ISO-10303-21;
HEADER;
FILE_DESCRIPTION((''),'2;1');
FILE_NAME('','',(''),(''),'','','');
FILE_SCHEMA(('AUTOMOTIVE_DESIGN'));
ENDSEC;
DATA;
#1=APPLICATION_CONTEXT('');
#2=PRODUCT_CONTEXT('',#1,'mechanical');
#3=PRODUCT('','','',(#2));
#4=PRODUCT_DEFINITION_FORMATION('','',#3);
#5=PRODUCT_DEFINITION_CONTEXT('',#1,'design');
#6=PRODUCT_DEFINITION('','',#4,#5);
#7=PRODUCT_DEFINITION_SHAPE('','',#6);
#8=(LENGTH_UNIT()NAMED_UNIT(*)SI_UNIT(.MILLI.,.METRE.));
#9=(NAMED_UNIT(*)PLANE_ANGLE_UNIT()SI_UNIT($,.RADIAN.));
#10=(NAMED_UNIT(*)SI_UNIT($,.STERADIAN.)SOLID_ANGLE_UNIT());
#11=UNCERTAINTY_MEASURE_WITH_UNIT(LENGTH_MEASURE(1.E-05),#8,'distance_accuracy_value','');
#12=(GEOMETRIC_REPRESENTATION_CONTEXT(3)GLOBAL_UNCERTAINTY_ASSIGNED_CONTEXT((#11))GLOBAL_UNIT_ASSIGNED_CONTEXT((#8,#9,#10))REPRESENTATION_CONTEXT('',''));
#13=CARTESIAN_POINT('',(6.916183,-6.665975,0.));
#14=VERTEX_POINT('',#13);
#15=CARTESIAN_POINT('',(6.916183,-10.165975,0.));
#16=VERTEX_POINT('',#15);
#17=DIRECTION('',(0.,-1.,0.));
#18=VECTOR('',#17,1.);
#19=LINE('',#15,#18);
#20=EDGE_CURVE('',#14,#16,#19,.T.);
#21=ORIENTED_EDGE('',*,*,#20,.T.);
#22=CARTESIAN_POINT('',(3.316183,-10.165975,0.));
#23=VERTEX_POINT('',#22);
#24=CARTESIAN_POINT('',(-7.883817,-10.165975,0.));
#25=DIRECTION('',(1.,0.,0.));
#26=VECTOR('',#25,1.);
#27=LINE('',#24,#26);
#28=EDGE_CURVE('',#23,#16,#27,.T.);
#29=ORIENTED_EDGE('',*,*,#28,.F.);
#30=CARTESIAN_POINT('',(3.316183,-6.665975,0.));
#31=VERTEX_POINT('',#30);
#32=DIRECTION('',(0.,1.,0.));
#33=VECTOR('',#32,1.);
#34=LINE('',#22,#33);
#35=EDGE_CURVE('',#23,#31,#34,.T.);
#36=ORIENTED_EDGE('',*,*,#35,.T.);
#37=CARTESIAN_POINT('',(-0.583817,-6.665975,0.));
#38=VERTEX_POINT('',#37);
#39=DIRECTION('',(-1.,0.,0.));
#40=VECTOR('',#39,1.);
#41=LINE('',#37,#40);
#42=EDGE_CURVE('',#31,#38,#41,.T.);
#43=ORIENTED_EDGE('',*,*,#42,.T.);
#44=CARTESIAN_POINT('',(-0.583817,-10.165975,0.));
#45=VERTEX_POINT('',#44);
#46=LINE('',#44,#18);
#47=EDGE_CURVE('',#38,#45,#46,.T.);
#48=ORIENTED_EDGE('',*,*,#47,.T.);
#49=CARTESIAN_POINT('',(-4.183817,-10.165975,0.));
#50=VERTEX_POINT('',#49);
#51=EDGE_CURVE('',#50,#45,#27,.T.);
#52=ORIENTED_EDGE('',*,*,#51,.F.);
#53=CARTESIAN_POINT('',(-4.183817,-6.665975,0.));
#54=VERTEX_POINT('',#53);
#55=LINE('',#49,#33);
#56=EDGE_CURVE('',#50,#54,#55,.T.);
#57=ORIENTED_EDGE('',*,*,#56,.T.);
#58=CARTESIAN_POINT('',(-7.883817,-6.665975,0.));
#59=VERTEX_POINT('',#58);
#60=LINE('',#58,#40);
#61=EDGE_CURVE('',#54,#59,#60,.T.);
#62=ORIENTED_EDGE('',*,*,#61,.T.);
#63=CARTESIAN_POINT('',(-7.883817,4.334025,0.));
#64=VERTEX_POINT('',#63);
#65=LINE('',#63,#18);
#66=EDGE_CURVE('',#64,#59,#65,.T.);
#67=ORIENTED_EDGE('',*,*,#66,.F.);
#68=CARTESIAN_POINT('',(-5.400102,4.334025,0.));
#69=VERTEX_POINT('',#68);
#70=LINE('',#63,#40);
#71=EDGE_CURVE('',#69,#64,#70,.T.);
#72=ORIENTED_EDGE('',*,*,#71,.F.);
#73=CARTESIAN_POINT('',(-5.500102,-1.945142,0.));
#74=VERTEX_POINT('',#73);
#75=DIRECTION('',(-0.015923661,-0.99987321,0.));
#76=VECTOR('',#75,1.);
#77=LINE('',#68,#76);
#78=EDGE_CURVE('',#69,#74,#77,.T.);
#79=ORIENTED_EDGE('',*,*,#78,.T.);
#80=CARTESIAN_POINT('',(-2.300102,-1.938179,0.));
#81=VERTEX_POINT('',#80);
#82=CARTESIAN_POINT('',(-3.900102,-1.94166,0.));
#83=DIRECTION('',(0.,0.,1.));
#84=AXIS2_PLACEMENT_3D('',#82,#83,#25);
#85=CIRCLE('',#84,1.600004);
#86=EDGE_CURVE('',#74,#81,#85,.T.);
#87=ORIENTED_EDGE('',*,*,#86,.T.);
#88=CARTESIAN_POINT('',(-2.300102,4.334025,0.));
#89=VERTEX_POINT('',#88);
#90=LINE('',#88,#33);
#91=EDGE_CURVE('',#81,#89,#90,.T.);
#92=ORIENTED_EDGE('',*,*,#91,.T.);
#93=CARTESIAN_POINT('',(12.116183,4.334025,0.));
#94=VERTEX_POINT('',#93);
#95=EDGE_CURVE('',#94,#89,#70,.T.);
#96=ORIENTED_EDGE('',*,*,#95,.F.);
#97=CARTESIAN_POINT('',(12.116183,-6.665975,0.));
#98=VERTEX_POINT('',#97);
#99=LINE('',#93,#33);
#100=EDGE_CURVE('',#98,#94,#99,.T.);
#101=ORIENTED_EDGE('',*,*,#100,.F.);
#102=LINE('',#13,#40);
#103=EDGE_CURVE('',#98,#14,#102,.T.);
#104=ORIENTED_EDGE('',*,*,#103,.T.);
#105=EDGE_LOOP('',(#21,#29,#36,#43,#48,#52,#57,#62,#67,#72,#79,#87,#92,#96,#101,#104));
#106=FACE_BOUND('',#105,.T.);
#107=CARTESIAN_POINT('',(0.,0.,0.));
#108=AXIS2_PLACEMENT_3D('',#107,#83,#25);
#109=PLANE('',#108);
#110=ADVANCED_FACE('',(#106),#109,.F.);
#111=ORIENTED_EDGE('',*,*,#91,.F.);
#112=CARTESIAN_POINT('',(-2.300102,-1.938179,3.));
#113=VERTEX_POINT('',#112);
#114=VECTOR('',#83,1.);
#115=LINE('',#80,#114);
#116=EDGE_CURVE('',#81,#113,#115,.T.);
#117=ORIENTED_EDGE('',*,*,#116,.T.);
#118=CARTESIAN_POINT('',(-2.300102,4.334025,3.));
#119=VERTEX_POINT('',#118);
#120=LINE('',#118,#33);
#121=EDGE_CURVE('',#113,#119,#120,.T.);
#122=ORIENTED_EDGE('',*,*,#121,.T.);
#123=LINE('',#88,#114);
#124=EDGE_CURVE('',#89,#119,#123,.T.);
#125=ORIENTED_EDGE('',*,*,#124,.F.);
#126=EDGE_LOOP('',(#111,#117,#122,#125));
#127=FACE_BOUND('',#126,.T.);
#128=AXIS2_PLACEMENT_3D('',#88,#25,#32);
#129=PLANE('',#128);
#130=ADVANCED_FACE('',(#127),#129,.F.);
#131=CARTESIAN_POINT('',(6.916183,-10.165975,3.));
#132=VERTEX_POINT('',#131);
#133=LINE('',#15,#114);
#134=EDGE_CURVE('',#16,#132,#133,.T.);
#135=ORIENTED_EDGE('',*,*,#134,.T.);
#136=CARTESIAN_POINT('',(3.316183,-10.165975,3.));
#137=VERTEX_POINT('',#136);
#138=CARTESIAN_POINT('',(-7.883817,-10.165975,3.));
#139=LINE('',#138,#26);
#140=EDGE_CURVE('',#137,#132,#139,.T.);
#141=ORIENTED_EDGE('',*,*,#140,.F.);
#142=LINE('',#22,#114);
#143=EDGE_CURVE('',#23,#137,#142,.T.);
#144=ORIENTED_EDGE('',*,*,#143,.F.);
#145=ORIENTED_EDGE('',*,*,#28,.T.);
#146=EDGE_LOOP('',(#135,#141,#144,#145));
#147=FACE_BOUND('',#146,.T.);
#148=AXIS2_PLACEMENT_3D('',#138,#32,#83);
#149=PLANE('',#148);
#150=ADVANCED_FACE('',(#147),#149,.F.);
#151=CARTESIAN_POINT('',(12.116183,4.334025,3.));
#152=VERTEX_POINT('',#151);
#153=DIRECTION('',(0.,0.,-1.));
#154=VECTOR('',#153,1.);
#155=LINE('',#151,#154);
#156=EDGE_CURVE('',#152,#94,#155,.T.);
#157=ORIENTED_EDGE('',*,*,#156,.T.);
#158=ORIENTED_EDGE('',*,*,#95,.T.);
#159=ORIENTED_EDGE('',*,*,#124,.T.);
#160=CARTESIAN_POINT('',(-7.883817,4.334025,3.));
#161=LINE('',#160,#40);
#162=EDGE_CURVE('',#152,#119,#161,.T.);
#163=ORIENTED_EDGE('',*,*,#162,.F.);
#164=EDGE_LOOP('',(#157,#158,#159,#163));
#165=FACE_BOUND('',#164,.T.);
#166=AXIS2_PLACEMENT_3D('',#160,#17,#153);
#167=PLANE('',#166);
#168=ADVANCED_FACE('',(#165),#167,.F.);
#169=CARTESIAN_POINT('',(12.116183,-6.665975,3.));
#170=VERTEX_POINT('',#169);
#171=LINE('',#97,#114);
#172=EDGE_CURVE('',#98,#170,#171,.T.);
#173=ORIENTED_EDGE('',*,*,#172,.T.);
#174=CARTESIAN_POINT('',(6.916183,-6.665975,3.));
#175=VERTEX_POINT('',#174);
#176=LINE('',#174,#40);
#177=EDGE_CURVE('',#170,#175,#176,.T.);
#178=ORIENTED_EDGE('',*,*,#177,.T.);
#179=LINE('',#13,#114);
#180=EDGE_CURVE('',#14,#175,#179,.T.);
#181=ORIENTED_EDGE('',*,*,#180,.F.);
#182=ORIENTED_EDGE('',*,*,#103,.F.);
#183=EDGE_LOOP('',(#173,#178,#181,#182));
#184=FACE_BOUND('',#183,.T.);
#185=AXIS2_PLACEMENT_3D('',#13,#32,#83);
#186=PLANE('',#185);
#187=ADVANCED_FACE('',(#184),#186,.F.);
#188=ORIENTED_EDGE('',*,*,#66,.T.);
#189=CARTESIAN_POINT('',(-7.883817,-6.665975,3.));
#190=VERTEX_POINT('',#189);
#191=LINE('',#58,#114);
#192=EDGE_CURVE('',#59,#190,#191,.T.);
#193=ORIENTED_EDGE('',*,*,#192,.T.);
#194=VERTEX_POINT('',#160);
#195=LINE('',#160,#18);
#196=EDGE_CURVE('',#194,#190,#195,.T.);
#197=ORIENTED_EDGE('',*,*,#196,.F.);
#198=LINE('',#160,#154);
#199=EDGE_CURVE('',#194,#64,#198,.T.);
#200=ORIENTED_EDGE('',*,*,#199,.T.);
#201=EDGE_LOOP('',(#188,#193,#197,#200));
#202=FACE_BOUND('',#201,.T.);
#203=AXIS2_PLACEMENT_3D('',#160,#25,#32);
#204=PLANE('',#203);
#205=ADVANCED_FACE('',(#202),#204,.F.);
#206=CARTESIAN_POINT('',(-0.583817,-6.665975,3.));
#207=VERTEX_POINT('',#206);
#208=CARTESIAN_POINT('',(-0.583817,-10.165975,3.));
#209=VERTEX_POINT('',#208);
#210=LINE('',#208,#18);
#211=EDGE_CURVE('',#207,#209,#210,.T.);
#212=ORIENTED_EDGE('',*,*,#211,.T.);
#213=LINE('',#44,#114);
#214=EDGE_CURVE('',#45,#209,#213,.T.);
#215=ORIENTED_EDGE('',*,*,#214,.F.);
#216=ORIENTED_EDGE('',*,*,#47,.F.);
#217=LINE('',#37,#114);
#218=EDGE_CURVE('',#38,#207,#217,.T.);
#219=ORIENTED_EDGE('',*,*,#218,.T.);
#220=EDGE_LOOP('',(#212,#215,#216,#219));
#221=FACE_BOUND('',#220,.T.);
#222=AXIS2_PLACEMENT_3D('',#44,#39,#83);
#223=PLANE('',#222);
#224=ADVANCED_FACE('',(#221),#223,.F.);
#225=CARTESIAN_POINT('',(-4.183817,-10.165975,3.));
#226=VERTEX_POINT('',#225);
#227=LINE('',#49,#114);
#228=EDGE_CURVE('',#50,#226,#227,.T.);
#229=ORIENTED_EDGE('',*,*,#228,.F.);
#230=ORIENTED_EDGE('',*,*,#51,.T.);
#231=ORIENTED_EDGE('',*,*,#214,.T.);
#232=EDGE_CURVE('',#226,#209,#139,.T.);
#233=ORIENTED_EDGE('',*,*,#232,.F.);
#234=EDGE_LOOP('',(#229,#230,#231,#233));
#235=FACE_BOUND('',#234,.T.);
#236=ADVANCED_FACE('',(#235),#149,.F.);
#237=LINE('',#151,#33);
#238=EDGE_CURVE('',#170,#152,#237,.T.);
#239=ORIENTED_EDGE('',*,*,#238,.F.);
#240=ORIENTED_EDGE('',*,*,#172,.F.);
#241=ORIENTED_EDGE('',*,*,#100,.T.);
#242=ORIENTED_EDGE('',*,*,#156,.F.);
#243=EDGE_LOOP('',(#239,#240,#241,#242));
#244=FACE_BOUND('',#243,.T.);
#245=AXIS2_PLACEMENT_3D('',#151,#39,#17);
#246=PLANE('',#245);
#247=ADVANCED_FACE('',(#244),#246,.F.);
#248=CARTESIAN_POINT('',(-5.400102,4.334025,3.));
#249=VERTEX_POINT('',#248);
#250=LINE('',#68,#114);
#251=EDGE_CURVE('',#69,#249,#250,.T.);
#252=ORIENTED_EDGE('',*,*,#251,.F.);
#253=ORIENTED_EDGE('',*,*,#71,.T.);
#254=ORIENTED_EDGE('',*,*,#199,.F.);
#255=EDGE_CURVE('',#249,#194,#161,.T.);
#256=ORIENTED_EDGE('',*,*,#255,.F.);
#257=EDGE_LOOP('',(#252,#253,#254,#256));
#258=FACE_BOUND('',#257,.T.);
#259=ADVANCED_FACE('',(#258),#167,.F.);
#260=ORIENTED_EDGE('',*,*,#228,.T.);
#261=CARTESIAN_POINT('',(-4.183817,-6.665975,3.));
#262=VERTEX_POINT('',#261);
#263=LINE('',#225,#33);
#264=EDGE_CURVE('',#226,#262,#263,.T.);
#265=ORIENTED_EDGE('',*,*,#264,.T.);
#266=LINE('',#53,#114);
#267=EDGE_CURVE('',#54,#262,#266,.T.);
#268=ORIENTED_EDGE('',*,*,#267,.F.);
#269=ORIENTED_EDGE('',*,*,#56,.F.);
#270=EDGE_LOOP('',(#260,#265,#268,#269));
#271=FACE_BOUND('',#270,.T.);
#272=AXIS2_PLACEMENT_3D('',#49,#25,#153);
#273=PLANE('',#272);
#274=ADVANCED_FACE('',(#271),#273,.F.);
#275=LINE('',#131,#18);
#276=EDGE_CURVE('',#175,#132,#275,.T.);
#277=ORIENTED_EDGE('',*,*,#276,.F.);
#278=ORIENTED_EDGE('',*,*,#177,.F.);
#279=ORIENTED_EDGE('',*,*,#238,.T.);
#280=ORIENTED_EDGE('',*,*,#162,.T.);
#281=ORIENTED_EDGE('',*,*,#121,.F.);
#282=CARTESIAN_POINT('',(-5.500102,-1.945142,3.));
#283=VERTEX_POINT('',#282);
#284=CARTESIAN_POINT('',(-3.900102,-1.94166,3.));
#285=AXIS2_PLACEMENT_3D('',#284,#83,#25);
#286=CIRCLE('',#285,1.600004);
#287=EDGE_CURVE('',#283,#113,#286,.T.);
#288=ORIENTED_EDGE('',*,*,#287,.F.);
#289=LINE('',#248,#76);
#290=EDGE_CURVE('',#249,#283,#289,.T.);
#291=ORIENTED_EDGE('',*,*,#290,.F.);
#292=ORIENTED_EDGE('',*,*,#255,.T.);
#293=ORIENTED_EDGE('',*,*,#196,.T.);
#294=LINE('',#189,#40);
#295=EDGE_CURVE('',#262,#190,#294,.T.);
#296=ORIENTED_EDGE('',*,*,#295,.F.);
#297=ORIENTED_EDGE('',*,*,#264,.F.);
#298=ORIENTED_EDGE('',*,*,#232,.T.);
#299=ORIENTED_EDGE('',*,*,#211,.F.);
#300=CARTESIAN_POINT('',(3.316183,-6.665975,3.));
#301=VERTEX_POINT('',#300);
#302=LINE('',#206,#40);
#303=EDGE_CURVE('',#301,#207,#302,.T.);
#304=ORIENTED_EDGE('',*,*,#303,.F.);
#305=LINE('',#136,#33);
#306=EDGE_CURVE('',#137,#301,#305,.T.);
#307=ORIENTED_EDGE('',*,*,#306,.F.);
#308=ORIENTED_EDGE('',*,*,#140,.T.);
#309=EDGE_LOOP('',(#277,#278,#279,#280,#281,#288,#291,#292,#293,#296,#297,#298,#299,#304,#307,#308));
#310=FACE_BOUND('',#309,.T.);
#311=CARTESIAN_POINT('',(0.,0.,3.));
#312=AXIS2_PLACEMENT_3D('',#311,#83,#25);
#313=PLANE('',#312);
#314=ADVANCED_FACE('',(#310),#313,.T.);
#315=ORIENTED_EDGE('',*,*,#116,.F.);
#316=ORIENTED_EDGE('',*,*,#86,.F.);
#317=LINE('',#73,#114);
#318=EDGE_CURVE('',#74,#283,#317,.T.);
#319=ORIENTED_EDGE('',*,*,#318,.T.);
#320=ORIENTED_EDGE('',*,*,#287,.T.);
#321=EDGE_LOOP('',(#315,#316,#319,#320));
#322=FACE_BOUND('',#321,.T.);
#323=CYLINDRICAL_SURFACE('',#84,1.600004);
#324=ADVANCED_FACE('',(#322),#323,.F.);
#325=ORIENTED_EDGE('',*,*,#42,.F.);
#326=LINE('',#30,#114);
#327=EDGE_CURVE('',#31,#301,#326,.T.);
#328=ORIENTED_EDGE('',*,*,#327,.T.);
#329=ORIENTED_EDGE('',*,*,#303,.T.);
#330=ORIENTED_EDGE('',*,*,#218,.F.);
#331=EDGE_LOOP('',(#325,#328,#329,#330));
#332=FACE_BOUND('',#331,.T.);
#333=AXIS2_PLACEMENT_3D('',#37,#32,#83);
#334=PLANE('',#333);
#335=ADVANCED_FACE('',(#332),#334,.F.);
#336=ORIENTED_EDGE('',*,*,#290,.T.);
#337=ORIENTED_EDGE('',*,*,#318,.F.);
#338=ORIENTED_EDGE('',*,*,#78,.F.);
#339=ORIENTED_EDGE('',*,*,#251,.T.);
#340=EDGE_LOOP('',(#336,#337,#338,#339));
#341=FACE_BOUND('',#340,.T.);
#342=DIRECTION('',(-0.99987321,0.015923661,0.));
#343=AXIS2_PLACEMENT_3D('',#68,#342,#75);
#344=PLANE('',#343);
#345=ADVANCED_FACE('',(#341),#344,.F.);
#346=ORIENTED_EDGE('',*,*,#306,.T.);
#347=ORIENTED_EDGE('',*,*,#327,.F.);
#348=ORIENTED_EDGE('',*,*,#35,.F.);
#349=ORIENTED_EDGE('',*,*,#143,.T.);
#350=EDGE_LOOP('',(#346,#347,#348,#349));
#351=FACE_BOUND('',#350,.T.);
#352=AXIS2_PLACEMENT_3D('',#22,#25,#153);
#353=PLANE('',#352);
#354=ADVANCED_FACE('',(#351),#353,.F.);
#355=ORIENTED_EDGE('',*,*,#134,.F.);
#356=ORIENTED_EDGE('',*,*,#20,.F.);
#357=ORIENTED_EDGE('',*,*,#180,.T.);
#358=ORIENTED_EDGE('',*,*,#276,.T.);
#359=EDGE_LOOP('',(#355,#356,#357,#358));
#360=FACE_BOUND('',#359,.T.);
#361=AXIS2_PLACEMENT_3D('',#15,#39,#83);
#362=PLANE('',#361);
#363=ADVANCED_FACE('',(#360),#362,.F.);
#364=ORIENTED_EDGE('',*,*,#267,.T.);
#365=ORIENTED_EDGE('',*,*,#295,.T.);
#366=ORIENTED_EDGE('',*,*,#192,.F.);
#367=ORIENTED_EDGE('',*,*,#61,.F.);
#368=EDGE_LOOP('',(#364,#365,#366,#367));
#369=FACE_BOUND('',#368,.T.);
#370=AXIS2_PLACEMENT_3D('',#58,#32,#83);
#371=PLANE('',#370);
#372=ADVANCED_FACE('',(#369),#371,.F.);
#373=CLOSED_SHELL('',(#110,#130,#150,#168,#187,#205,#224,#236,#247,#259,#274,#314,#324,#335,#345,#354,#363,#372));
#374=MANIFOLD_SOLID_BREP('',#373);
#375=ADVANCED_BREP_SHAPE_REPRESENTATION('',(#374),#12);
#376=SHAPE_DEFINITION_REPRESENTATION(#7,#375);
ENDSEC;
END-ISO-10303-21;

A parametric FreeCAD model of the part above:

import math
import FreeCAD as App
import Part
import Sketcher


def add_polygon(sketch, points):
    """Adds a closed chain of lines whose ends are joined by coincident constraints."""
    first, n = sketch.GeometryCount, len(points)
    for a, b in zip(points, points[1:] + points[:1]):
        sketch.addGeometry(Part.LineSegment(App.Vector(*a, 0), App.Vector(*b, 0)), False)
    for i in range(n):
        sketch.addConstraint(Sketcher.Constraint("Coincident", first + i, 2, first + (i + 1) % n, 1))

doc = App.newDocument("Part")
params = doc.addObject("Spreadsheet::Sheet", "Params")
for row, (alias, value) in enumerate([
    ("sketch1_width", "20 mm"),
    ("sketch1_height", "14.5 mm"),
    ("pad1_length", "3 mm"),
    ("sketch2_width", "3.7 mm"),
    ("sketch2_width2", "3.9 mm"),
    ("sketch2_width3", "5.2 mm"),
    ("sketch2_height", "3.5 mm"),
    ("pocket1_length", "3 mm"),
    ("sketch3_radius", "1.55 mm"),
    ("pocket2_length", "3 mm"),
    ("sketch4_width", "1.6 mm"),
    ("pocket3_length", "3 mm"),
], start=1):
    params.set(f"A{row}", alias)
    params.set(f"B{row}", "=" + value)
    params.setAlias(f"B{row}", alias)

body = doc.addObject("PartDesign::Body", "Body")

sketch1 = body.newObject("Sketcher::SketchObject", "Sketch")
sketch1.AttachmentSupport = (doc.getObject("XY_Plane"), [""])
sketch1.MapMode = "FlatFace"
add_polygon(sketch1, [(-8, 4), (-8, -10), (12, -10), (12, 4)])
sketch1.addConstraint([
    Sketcher.Constraint("Vertical", 0),
    Sketcher.Constraint("Horizontal", 1),
    Sketcher.Constraint("Vertical", 2),
    Sketcher.Constraint("Horizontal", 3),
    Sketcher.Constraint("DistanceX", 1, 1, 1, 2, 20.0),
    Sketcher.Constraint("DistanceY", 0, 2, 0, 1, 14.5),
    Sketcher.Constraint("DistanceX", 0, 2, -1, 1, 7.883817),
    Sketcher.Constraint("DistanceY", 0, 2, -1, 1, 10.165975),
])
sketch1.setExpression("Constraints[8]", "Params.sketch1_width")
sketch1.setExpression("Constraints[9]", "Params.sketch1_height")
pad1 = body.newObject("PartDesign::Pad", "Pad")
pad1.Profile = sketch1
pad1.setExpression("Length", "Params.pad1_length")

sketch2 = body.newObject("Sketcher::SketchObject", "Sketch001")
sketch2.AttachmentSupport = (doc.getObject("XY_Plane"), [""])
sketch2.MapMode = "FlatFace"
sketch2.AttachmentOffset = App.Placement(App.Vector(0, 0, 3), App.Rotation())
add_polygon(sketch2, [(-7.9, -6.7), (-7.9, -10.2), (-4.2, -10.2), (-4.2, -6.7)])
add_polygon(sketch2, [(-0.6, -6.7), (-0.6, -10.2), (3.3, -10.2), (3.3, -6.7)])
add_polygon(sketch2, [(6.9, -6.7), (6.9, -10.2), (12.1, -10.2), (12.1, -6.7)])
sketch2.addConstraint([
    Sketcher.Constraint("Vertical", 0),
    Sketcher.Constraint("Horizontal", 1),
    Sketcher.Constraint("Vertical", 2),
    Sketcher.Constraint("Horizontal", 3),
    Sketcher.Constraint("Vertical", 4),
    Sketcher.Constraint("Horizontal", 5),
    Sketcher.Constraint("Vertical", 6),
    Sketcher.Constraint("Horizontal", 7),
    Sketcher.Constraint("Vertical", 8),
    Sketcher.Constraint("Horizontal", 9),
    Sketcher.Constraint("Vertical", 10),
    Sketcher.Constraint("Horizontal", 11),
    Sketcher.Constraint("Horizontal", 1, 2, 4, 2),
    Sketcher.Constraint("Horizontal", 3, 2, 6, 2),
    Sketcher.Constraint("Horizontal", 5, 2, 8, 2),
    Sketcher.Constraint("Horizontal", 7, 2, 10, 2),
    Sketcher.Constraint("DistanceX", 1, 1, 1, 2, 3.7),
    Sketcher.Constraint("DistanceX", 5, 1, 5, 2, 3.9),
    Sketcher.Constraint("DistanceX", 9, 1, 9, 2, 5.2),
    Sketcher.Constraint("DistanceY", 0, 2, 0, 1, 3.5),
    Sketcher.Constraint("DistanceX", 1, 2, 4, 2, 3.6),
    Sketcher.Constraint("DistanceX", 5, 2, 8, 2, 3.6),
    Sketcher.Constraint("DistanceX", 0, 2, -1, 1, 7.883817),
    Sketcher.Constraint("DistanceY", 0, 2, -1, 1, 10.165975),
])
sketch2.setExpression("Constraints[28]", "Params.sketch2_width")
sketch2.setExpression("Constraints[29]", "Params.sketch2_width2")
sketch2.setExpression("Constraints[30]", "Params.sketch2_width3")
sketch2.setExpression("Constraints[31]", "Params.sketch2_height")
pocket1 = body.newObject("PartDesign::Pocket", "Pocket")
pocket1.Profile = sketch2
pocket1.setExpression("Length", "Params.pocket1_length")

sketch3 = body.newObject("Sketcher::SketchObject", "Sketch002")
sketch3.AttachmentSupport = (doc.getObject("XY_Plane"), [""])
sketch3.MapMode = "FlatFace"
sketch3.AttachmentOffset = App.Placement(App.Vector(0, 0, 3), App.Rotation())
sketch3.addGeometry([
    Part.LineSegment(App.Vector(-2.3, -1.9, 0), App.Vector(-2.3, 4.3, 0)),
    Part.ArcOfCircle(Part.Circle(App.Vector(-3.9, 4.3, 0), App.Vector(0, 0, 1), 1.6), math.radians(0), math.radians(180)),
    Part.LineSegment(App.Vector(-5.4, 4.3, 0), App.Vector(-5.4, -1.9, 0)),
    Part.ArcOfCircle(Part.Circle(App.Vector(-3.9, -1.9, 0), App.Vector(0, 0, 1), 1.6), math.radians(180), math.radians(360)),
], False)
sketch3.addConstraint([
    Sketcher.Constraint("Tangent", 0, 2, 1, 1),
    Sketcher.Constraint("Tangent", 1, 2, 2, 1),
    Sketcher.Constraint("Tangent", 2, 2, 3, 1),
    Sketcher.Constraint("Tangent", 3, 2, 0, 1),
    Sketcher.Constraint("Vertical", 0),
    Sketcher.Constraint("Vertical", 2),
    Sketcher.Constraint("Radius", 1, 1.55),
    Sketcher.Constraint("DistanceX", 1, 3, -1, 1, 3.850102),
    Sketcher.Constraint("DistanceY", 0, 1, 0, 2, 6.272204),
    Sketcher.Constraint("DistanceY", 3, 3, -1, 1, 1.938179),
])
sketch3.setExpression("Constraints[6]", "Params.sketch3_radius")
pocket2 = body.newObject("PartDesign::Pocket", "Pocket001")
pocket2.Profile = sketch3
pocket2.setExpression("Length", "Params.pocket2_length")

sketch4 = body.newObject("Sketcher::SketchObject", "Sketch003")
sketch4.AttachmentSupport = (doc.getObject("XY_Plane"), [""])
sketch4.MapMode = "FlatFace"
sketch4.AttachmentOffset = App.Placement(App.Vector(0, 0, 3), App.Rotation())
sketch4.addGeometry([
    Part.LineSegment(App.Vector(-5.400102, 4.334025, 0), App.Vector(-5.500102, -1.945142, 0)),
    Part.ArcOfCircle(Part.Circle(App.Vector(-3.900102, -1.94166, 0), App.Vector(0, 0, 1), 1.600004), math.radians(-179.875337), math.radians(0.124663)),
    Part.LineSegment(App.Vector(-2.300102, -1.938179, 0), App.Vector(-5.400102, 4.334025, 0)),
], False)
sketch4.addConstraint([
    Sketcher.Constraint("Coincident", 0, 2, 1, 1),
    Sketcher.Constraint("Coincident", 1, 2, 2, 1),
    Sketcher.Constraint("Coincident", 2, 2, 0, 1),
    Sketcher.Constraint("DistanceX", 0, 2, 1, 3, 1.6),
    Sketcher.Constraint("DistanceX", 1, 3, 1, 2, 1.6),
    Sketcher.Constraint("DistanceX", 0, 2, 2, 2, 0.1),
    Sketcher.Constraint("DistanceX", 1, 3, -1, 1, 3.900102),
    Sketcher.Constraint("DistanceY", 1, 3, -1, 1, 1.94166),
    Sketcher.Constraint("DistanceY", 0, 2, -1, 1, 1.945142),
    Sketcher.Constraint("Distance", 0, 6.279963),
])
sketch4.setExpression("Constraints[4]", "Params.sketch4_width")
pocket3 = body.newObject("PartDesign::Pocket", "Pocket002")
pocket3.Profile = sketch4
pocket3.setExpression("Length", "Params.pocket3_length")

doc.recompute()
